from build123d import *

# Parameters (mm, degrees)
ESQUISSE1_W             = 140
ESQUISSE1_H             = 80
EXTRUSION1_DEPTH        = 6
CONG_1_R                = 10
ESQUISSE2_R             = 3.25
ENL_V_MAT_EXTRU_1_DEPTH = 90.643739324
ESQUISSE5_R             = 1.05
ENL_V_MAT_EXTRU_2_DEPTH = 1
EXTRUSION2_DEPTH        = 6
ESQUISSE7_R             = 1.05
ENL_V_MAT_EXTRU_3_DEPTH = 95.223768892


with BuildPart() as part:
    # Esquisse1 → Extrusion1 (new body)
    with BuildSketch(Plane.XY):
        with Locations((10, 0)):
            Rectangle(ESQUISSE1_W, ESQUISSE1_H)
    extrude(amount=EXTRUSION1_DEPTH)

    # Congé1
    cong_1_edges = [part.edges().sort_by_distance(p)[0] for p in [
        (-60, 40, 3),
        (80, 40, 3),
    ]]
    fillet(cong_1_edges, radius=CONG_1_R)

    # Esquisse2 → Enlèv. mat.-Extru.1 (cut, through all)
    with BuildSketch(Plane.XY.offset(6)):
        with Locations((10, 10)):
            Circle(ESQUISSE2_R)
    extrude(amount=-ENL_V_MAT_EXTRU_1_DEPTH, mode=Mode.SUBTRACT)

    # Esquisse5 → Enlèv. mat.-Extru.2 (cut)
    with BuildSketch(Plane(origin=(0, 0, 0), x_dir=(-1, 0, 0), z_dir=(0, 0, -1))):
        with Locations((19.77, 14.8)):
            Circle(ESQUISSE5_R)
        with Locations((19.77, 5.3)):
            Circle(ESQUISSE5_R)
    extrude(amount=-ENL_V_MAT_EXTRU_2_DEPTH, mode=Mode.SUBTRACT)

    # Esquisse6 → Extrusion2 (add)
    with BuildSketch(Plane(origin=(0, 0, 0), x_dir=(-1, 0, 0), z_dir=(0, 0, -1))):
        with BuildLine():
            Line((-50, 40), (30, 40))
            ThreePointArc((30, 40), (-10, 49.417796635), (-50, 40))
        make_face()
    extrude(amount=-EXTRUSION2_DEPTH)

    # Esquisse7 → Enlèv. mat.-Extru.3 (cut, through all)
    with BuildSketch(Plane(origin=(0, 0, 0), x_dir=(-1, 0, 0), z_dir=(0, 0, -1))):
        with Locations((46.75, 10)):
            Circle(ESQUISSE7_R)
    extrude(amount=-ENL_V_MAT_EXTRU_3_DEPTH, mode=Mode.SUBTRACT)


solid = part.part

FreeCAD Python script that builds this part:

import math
import FreeCAD as App
import Part
import Sketcher

V = App.Vector
Q = App.Units.Quantity


def edges_at(feature, points):
    """Names of the edges that pass closest to the given points."""
    edges = feature.Shape.Edges
    near = lambda p: min(range(len(edges)), key=lambda i: edges[i].distToShape(Part.Vertex(*p))[0])
    return sorted({f"Edge{near(p) + 1}" for p in points})

doc = App.newDocument("Part")
params = doc.addObject("Spreadsheet::Sheet", "Params")
for row, (alias, value) in enumerate([
    ("sketch1_width", "140 mm"),
    ("sketch1_height", "80 mm"),
    ("pad1_length", "6 mm"),
    ("fillet_radius", "10 mm"),
    ("sketch2_diameter", "6.5 mm"),
    ("sketch3_diameter", "2.1 mm"),
    ("pocket2_length", "1 mm"),
    ("sketch4_width", "80 mm"),
    ("pad2_length", "6 mm"),
    ("sketch5_diameter", "2.1 mm"),
], start=1):
    params.set(f"A{row}", alias)
    params.set(f"B{row}", "=" + value)
    params.setAlias(f"B{row}", alias)

body = doc.addObject("PartDesign::Body", "Body")

# Sketch on XY plane
sketch1 = body.newObject("Sketcher::SketchObject", "Sketch")
sketch1.AttachmentSupport = (doc.getObject("XY_Plane"), [""])
sketch1.MapMode = "FlatFace"
sketch1.addGeometry([
    Part.LineSegment(V(-60, 40, 0), V(-60, -40, 0)),
    Part.LineSegment(V(-60, -40, 0), V(80, -40, 0)),
    Part.LineSegment(V(80, -40, 0), V(80, 40, 0)),
    Part.LineSegment(V(80, 40, 0), V(-60, 40, 0)),
], False)
sketch1.addConstraint([
    Sketcher.Constraint("Coincident", 0, 2, 1, 1),
    Sketcher.Constraint("Coincident", 1, 2, 2, 1),
    Sketcher.Constraint("Coincident", 2, 2, 3, 1),
    Sketcher.Constraint("Coincident", 3, 2, 0, 1),
    Sketcher.Constraint("Vertical", 0),
    Sketcher.Constraint("Horizontal", 1),
    Sketcher.Constraint("Vertical", 2),
    Sketcher.Constraint("Horizontal", 3),
    Sketcher.Constraint("DistanceX", 1, 1, 1, 2, Q("140 mm")),
    Sketcher.Constraint("DistanceY", 0, 2, 0, 1, Q("80 mm")),
    Sketcher.Constraint("DistanceX", 0, 2, -1, 1, Q("60 mm")),
    Sketcher.Constraint("DistanceY", 0, 2, -1, 1, Q("40 mm")),
])
sketch1.setExpression("Constraints[8]", "Params.sketch1_width")
sketch1.setExpression("Constraints[9]", "Params.sketch1_height")
pad1 = body.newObject("PartDesign::Pad", "Pad")
pad1.Profile = sketch1
pad1.setExpression("Length", "Params.pad1_length")
doc.recompute()

fillet = body.newObject("PartDesign::Fillet", "Fillet")
fillet.Base = (pad1, edges_at(pad1, [(-60, 40, 3), (80, 40, 3)]))
fillet.setExpression("Radius", "Params.fillet_radius")

# Sketch on XY plane
sketch2 = body.newObject("Sketcher::SketchObject", "Sketch001")
sketch2.AttachmentSupport = (doc.getObject("XY_Plane"), [""])
sketch2.MapMode = "FlatFace"
sketch2.AttachmentOffset = App.Placement(V(0, 0, 6), App.Rotation())
sketch2.addGeometry(Part.Circle(V(10, 10, 0), V(0, 0, 1), 3.2), False)
sketch2.addConstraint([
    Sketcher.Constraint("Diameter", 0, Q("6.5 mm")),
    Sketcher.Constraint("DistanceX", -1, 1, 0, 3, Q("10 mm")),
    Sketcher.Constraint("DistanceY", -1, 1, 0, 3, Q("10 mm")),
])
sketch2.setExpression("Constraints[0]", "Params.sketch2_diameter")
pocket1 = body.newObject("PartDesign::Pocket", "Pocket")
pocket1.Profile = sketch2
pocket1.Type = "ThroughAll"

# Sketch on XY plane
sketch3 = body.newObject("Sketcher::SketchObject", "Sketch002")
sketch3.AttachmentSupport = (doc.getObject("XY_Plane"), [""])
sketch3.MapMode = "FlatFace"
sketch3.addGeometry([
    Part.Circle(V(-19.8, 14.8, 0), V(0, 0, 1), 1.1),
    Part.Circle(V(-19.8, 5.3, 0), V(0, 0, 1), 1.1),
], False)
sketch3.addConstraint([
    Sketcher.Constraint("Equal", 0, 1),
    Sketcher.Constraint("Vertical", 0, 3, 1, 3),
    Sketcher.Constraint("Diameter", 0, Q("2.1 mm")),
    Sketcher.Constraint("DistanceY", -1, 1, 0, 3, Q("14.8 mm")),
    Sketcher.Constraint("DistanceY", -1, 1, 1, 3, Q("5.3 mm")),
    Sketcher.Constraint("DistanceX", 0, 3, -1, 1, Q("19.77 mm")),
])
sketch3.setExpression("Constraints[2]", "Params.sketch3_diameter")
pocket2 = body.newObject("PartDesign::Pocket", "Pocket001")
pocket2.Profile = sketch3
pocket2.setExpression("Length", "Params.pocket2_length")
pocket2.Reversed = True

# Sketch on XY plane
sketch4 = body.newObject("Sketcher::SketchObject", "Sketch003")
sketch4.AttachmentSupport = (doc.getObject("XY_Plane"), [""])
sketch4.MapMode = "FlatFace"
sketch4.addGeometry([
    Part.LineSegment(V(50, 40, 0), V(-30, 40, 0)),
    Part.ArcOfCircle(Part.Circle(V(10, -40, 0), V(0, 0, 1), 90), math.radians(64), math.radians(116)),
], False)
sketch4.addConstraint([
    Sketcher.Constraint("Coincident", 0, 1, 1, 1),
    Sketcher.Constraint("Coincident", 1, 2, 0, 2),
    Sketcher.Constraint("Horizontal", 0),
    Sketcher.Constraint("DistanceX", 0, 2, 0, 1, Q("80 mm")),
    Sketcher.Constraint("DistanceX", -1, 1, 1, 3, Q("10 mm")),
    Sketcher.Constraint("DistanceY", -1, 1, 0, 1, Q("40 mm")),
    Sketcher.Constraint("Radius", 1, Q("89.654457 mm")),
])
sketch4.setExpression("Constraints[3]", "Params.sketch4_width")
pad2 = body.newObject("PartDesign::Pad", "Pad001")
pad2.Profile = sketch4
pad2.setExpression("Length", "Params.pad2_length")

# Sketch on XY plane
sketch5 = body.newObject("Sketcher::SketchObject", "Sketch004")
sketch5.AttachmentSupport = (doc.getObject("XY_Plane"), [""])
sketch5.MapMode = "FlatFace"
sketch5.addGeometry(Part.Circle(V(-46.8, 10, 0), V(0, 0, 1), 1.1), False)
sketch5.addConstraint([
    Sketcher.Constraint("Diameter", 0, Q("2.1 mm")),
    Sketcher.Constraint("DistanceY", -1, 1, 0, 3, Q("10 mm")),
    Sketcher.Constraint("DistanceX", 0, 3, -1, 1, Q("46.75 mm")),
])
sketch5.setExpression("Constraints[0]", "Params.sketch5_diameter")
pocket3 = body.newObject("PartDesign::Pocket", "Pocket002")
pocket3.Profile = sketch5
pocket3.Type = "ThroughAll"
pocket3.Reversed = True

doc.recompute()
